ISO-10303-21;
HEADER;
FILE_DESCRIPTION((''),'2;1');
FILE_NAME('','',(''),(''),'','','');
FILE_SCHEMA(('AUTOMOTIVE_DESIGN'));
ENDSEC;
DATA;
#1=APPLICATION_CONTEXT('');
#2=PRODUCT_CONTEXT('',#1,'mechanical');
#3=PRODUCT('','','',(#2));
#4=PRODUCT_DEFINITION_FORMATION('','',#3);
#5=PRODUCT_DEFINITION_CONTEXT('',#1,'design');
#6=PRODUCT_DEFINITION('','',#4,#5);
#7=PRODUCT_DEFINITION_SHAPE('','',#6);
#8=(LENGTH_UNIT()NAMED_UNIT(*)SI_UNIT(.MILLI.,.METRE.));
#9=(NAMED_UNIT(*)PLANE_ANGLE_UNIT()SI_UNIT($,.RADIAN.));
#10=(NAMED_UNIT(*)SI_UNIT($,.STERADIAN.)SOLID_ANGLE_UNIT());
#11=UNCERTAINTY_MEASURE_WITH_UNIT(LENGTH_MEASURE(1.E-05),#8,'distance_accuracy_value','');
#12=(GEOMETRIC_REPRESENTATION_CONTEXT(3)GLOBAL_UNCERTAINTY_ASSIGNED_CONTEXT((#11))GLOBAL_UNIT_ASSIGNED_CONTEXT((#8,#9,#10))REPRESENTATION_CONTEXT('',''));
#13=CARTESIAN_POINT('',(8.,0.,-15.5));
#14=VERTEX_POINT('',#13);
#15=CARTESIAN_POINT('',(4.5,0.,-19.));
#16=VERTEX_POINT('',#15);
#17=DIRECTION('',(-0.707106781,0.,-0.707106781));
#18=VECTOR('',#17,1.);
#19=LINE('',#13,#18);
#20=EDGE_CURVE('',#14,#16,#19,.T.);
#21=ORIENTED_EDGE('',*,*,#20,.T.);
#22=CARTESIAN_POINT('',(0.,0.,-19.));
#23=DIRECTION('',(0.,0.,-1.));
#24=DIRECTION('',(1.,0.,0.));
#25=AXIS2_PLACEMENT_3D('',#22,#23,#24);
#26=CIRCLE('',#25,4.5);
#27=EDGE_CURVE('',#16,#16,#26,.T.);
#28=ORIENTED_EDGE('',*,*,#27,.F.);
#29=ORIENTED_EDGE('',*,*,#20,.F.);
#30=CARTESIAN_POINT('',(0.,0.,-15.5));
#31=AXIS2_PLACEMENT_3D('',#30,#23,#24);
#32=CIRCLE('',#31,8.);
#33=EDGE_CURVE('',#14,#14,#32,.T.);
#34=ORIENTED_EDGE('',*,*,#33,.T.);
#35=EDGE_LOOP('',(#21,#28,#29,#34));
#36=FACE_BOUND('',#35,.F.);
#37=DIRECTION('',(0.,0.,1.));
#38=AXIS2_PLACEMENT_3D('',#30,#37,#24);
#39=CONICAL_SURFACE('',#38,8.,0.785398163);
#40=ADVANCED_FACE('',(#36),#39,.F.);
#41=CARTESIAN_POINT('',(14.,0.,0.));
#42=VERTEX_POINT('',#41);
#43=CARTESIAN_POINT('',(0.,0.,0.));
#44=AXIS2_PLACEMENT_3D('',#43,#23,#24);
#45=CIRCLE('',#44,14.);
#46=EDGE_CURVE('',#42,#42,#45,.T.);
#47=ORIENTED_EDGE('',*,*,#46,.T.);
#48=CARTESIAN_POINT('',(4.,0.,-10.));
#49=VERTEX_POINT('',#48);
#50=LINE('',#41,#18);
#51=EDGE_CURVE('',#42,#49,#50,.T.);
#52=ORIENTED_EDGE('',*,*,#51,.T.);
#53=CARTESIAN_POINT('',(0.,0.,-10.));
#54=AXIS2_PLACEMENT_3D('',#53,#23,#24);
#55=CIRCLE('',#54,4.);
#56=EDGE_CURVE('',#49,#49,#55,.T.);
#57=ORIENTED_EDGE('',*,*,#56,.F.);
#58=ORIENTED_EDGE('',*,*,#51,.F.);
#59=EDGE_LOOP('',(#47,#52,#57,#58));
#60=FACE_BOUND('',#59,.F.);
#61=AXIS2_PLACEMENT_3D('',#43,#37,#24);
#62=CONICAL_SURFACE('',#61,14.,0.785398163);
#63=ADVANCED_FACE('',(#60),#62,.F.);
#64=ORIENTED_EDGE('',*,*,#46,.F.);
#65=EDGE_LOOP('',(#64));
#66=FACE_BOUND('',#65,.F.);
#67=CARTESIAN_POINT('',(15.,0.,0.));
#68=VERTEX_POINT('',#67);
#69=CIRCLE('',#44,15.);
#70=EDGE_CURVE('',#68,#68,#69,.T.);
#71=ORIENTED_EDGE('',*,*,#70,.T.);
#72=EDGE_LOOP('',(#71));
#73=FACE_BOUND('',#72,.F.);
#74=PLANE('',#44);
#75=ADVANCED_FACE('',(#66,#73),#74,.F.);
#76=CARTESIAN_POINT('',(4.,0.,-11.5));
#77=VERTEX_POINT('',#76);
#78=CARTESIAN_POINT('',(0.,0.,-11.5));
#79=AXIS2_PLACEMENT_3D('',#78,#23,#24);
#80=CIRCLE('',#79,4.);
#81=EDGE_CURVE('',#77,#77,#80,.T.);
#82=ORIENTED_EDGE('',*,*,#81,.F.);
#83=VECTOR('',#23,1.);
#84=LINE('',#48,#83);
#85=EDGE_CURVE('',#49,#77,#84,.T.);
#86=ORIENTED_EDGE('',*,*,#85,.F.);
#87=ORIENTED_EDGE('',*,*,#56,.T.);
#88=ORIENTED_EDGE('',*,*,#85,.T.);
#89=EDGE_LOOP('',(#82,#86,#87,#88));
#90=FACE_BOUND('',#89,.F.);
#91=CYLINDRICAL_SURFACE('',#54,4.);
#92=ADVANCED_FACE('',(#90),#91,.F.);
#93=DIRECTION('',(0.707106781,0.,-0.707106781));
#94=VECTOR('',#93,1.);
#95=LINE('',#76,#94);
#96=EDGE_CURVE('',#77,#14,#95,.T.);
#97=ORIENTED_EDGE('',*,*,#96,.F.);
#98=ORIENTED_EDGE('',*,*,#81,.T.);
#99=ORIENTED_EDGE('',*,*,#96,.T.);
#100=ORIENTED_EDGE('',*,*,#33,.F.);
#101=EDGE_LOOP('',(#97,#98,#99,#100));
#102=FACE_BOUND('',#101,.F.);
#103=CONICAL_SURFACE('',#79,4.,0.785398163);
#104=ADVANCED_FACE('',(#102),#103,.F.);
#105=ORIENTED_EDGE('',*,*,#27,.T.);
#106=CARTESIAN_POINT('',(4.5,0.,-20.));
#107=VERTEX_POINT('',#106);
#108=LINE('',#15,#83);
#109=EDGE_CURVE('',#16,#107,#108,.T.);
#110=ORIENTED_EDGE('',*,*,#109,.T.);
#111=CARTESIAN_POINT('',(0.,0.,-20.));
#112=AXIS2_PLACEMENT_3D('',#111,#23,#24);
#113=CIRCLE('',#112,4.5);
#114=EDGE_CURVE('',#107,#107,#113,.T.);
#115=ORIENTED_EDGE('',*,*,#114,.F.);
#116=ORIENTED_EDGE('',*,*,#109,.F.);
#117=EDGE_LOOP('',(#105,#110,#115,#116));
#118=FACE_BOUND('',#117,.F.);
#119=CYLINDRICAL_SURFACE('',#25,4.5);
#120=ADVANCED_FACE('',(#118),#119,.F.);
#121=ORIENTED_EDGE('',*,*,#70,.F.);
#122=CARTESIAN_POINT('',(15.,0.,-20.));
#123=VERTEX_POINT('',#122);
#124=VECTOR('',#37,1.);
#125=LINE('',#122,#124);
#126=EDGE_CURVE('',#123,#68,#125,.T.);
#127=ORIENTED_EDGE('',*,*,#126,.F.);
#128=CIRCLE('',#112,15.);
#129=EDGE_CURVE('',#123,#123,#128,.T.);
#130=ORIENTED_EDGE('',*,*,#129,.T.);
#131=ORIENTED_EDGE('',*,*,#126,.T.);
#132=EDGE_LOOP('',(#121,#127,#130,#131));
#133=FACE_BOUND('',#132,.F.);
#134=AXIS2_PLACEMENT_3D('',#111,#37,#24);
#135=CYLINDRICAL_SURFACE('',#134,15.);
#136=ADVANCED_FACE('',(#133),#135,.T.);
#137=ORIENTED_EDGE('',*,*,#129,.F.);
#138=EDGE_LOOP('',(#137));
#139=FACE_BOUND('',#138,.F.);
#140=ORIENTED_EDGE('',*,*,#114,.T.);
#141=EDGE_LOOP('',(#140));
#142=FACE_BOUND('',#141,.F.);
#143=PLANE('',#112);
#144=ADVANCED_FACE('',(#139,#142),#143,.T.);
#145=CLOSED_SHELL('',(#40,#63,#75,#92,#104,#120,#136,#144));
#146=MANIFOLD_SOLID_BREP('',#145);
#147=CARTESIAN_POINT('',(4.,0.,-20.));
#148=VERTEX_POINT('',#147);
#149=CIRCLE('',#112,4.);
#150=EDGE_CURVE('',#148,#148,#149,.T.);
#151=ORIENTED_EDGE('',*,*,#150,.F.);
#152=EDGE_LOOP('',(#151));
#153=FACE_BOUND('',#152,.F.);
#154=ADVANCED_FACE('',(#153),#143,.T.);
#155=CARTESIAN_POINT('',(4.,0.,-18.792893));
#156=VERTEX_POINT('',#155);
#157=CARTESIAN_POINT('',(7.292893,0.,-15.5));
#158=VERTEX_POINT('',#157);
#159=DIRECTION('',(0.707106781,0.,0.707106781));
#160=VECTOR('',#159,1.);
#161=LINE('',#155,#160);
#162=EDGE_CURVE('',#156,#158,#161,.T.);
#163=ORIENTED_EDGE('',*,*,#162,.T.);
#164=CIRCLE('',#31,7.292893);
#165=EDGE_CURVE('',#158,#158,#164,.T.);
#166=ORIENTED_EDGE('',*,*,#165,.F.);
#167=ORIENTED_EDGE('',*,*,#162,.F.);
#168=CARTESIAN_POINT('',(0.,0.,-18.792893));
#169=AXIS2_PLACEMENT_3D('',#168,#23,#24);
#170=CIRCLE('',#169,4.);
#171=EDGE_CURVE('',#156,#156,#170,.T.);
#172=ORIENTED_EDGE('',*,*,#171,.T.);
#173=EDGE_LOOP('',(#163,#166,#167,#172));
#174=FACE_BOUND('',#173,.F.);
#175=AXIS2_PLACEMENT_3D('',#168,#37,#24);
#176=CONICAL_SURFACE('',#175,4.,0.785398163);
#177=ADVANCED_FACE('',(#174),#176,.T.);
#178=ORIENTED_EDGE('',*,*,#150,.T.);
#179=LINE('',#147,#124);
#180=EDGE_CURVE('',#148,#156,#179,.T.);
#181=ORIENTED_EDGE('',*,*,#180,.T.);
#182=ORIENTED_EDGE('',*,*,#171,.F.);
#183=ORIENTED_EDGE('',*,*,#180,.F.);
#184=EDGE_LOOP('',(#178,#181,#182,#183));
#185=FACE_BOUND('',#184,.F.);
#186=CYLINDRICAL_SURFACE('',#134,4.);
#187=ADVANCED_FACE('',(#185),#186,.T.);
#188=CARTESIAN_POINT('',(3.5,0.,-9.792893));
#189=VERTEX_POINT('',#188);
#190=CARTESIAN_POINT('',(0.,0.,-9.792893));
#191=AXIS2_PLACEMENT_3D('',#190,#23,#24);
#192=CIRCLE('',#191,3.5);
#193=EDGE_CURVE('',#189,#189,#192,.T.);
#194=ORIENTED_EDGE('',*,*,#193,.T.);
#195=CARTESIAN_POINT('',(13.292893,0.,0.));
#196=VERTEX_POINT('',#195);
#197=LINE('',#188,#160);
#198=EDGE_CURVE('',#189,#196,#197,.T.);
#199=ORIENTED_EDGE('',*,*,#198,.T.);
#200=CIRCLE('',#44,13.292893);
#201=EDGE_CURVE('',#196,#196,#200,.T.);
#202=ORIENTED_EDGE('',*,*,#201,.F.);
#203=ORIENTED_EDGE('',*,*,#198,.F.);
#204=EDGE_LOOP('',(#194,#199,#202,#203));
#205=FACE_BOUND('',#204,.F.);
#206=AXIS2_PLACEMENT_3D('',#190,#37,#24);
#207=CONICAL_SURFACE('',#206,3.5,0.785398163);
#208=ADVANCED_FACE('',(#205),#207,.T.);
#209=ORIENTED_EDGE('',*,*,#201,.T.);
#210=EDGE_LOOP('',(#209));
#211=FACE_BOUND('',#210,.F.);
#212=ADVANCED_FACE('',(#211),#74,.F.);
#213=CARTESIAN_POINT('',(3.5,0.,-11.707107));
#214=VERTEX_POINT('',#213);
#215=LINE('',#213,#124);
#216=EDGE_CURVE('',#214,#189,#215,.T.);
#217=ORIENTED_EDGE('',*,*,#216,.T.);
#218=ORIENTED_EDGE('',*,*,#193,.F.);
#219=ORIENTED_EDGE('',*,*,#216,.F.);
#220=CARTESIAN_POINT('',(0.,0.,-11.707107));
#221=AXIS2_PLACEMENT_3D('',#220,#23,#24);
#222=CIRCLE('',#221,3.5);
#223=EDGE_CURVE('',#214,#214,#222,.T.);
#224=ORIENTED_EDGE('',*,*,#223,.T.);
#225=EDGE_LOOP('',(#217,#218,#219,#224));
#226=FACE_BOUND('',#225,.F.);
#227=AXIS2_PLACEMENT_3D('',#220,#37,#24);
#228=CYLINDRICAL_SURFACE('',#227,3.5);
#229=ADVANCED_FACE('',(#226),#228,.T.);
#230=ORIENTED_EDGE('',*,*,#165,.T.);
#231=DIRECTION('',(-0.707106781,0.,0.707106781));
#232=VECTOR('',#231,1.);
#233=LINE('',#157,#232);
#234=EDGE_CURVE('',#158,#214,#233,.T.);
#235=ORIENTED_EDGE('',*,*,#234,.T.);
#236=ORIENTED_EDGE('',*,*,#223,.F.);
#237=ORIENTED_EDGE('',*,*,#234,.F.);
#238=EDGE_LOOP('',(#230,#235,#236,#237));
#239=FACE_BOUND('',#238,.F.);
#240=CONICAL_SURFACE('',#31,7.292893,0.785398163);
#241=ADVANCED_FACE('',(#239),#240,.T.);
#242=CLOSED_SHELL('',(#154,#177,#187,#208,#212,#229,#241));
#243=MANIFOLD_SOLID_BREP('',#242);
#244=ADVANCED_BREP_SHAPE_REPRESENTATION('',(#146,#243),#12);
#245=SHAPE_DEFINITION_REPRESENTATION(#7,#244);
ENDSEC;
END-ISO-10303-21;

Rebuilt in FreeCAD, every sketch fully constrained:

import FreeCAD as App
import Part
import Sketcher
from FreeCAD import Vector
Q = App.Units.Quantity

doc = App.newDocument("Part")
body = doc.addObject("PartDesign::Body", "Body")
body.AllowCompound = True

# Sketch on XZ plane
sketch1 = body.newObject("Sketcher::SketchObject", "Sketch")
sketch1.AttachmentSupport = (doc.getObject("XZ_Plane"), [""])
sketch1.MapMode = "FlatFace"
sketch1.addGeometry([
    Part.LineSegment(Vector(15, 0, 0), Vector(14, 0, 0)),  # 0
    Part.LineSegment(Vector(14, 0, 0), Vector(4, -10, 0)),  # 1
    Part.LineSegment(Vector(4, -10, 0), Vector(4, -11.5, 0)),  # 2
    Part.LineSegment(Vector(4, -11.5, 0), Vector(8, -15.5, 0)),  # 3
    Part.LineSegment(Vector(8, -15.5, 0), Vector(4.5, -19, 0)),  # 4
    Part.LineSegment(Vector(4.5, -19, 0), Vector(4.5, -20, 0)),  # 5
    Part.LineSegment(Vector(4.5, -20, 0), Vector(15, -20, 0)),  # 6
    Part.LineSegment(Vector(15, -20, 0), Vector(15, 0, 0)),  # 7
    Part.LineSegment(Vector(3.5, -11.7, 0), Vector(3.5, -9.8, 0)),  # 8
    Part.LineSegment(Vector(3.5, -9.8, 0), Vector(13.3, 0, 0)),  # 9
    Part.LineSegment(Vector(13.3, 0, 0), Vector(0, 0, 0)),  # 10
    Part.LineSegment(Vector(0, 0, 0), Vector(0, -20, 0)),  # 11
    Part.LineSegment(Vector(0, -20, 0), Vector(4, -20, 0)),  # 12
    Part.LineSegment(Vector(4, -20, 0), Vector(4, -18.8, 0)),  # 13
    Part.LineSegment(Vector(4, -18.8, 0), Vector(7.3, -15.5, 0)),  # 14
    Part.LineSegment(Vector(7.3, -15.5, 0), Vector(3.5, -11.7, 0)),  # 15
], False)
sketch1.addConstraint([
    Sketcher.Constraint("Coincident", 0, 2, 1, 1),
    Sketcher.Constraint("Coincident", 1, 2, 2, 1),
    Sketcher.Constraint("Coincident", 2, 2, 3, 1),
    Sketcher.Constraint("Coincident", 3, 2, 4, 1),
    Sketcher.Constraint("Coincident", 4, 2, 5, 1),
    Sketcher.Constraint("Coincident", 5, 2, 6, 1),
    Sketcher.Constraint("Coincident", 6, 2, 7, 1),
    Sketcher.Constraint("Coincident", 7, 2, 0, 1),
    Sketcher.Constraint("Coincident", 8, 2, 9, 1),
    Sketcher.Constraint("Coincident", 9, 2, 10, 1),
    Sketcher.Constraint("Coincident", 10, 2, 11, 1),
    Sketcher.Constraint("Coincident", 11, 2, 12, 1),
    Sketcher.Constraint("Coincident", 12, 2, 13, 1),
    Sketcher.Constraint("Coincident", 13, 2, 14, 1),
    Sketcher.Constraint("Coincident", 14, 2, 15, 1),
    Sketcher.Constraint("Coincident", 15, 2, 8, 1),
    Sketcher.Constraint("Horizontal", 0),
    Sketcher.Constraint("Vertical", 2),
    Sketcher.Constraint("Vertical", 5),
    Sketcher.Constraint("Horizontal", 6),
    Sketcher.Constraint("Vertical", 7),
    Sketcher.Constraint("Vertical", 8),
    Sketcher.Constraint("Horizontal", 10),
    Sketcher.Constraint("Vertical", 11),
    Sketcher.Constraint("Horizontal", 12),
    Sketcher.Constraint("Vertical", 13),
    Sketcher.Constraint("Coincident", 10, 2, -1, 1),
    Sketcher.Constraint("PointOnObject", 0, 2, -1),
    Sketcher.Constraint("Perpendicular", 1, 3),
    Sketcher.Constraint("Perpendicular", 3, 4),
    Sketcher.Constraint("Parallel", 4, 9),
    Sketcher.Constraint("Parallel", 9, 14),
    Sketcher.Constraint("Perpendicular", 14, 15),
    Sketcher.Constraint("Horizontal", 6, 2, 11, 2),
    Sketcher.Constraint("Horizontal", 3, 2, 14, 2),
    Sketcher.Constraint("Vertical", 2, 2, 12, 2),
    Sketcher.Constraint("Equal", 0, 5),
    Sketcher.Constraint("DistanceX", 0, 2, 0, 1, 1.0),
    Sketcher.Constraint("DistanceX", 12, 1, 12, 2, 4.0),
    Sketcher.Constraint("DistanceY", 7, 1, 7, 2, 20.0),
    Sketcher.Constraint("Angle", 1, Q("-135 deg")),
    Sketcher.Constraint("DistanceX", 6, 1, 6, 2, 10.5),
    Sketcher.Constraint("DistanceY", 2, 2, 2, 1, 1.5),
    Sketcher.Constraint("DistanceX", -1, 1, 0, 2, 14.0),
    Sketcher.Constraint("DistanceX", 8, 2, 4, 2, 1.0),
    Sketcher.Constraint("Distance", 15, 5.363961),
    Sketcher.Constraint("DistanceX", 10, 2, 10, 1, 13.292893),
])
revolution = body.newObject("PartDesign::Revolution", "Revolution")
revolution.Profile = sketch1
revolution.ReferenceAxis = (sketch1, ["V_Axis"])
revolution.Angle = 360

doc.recompute()
